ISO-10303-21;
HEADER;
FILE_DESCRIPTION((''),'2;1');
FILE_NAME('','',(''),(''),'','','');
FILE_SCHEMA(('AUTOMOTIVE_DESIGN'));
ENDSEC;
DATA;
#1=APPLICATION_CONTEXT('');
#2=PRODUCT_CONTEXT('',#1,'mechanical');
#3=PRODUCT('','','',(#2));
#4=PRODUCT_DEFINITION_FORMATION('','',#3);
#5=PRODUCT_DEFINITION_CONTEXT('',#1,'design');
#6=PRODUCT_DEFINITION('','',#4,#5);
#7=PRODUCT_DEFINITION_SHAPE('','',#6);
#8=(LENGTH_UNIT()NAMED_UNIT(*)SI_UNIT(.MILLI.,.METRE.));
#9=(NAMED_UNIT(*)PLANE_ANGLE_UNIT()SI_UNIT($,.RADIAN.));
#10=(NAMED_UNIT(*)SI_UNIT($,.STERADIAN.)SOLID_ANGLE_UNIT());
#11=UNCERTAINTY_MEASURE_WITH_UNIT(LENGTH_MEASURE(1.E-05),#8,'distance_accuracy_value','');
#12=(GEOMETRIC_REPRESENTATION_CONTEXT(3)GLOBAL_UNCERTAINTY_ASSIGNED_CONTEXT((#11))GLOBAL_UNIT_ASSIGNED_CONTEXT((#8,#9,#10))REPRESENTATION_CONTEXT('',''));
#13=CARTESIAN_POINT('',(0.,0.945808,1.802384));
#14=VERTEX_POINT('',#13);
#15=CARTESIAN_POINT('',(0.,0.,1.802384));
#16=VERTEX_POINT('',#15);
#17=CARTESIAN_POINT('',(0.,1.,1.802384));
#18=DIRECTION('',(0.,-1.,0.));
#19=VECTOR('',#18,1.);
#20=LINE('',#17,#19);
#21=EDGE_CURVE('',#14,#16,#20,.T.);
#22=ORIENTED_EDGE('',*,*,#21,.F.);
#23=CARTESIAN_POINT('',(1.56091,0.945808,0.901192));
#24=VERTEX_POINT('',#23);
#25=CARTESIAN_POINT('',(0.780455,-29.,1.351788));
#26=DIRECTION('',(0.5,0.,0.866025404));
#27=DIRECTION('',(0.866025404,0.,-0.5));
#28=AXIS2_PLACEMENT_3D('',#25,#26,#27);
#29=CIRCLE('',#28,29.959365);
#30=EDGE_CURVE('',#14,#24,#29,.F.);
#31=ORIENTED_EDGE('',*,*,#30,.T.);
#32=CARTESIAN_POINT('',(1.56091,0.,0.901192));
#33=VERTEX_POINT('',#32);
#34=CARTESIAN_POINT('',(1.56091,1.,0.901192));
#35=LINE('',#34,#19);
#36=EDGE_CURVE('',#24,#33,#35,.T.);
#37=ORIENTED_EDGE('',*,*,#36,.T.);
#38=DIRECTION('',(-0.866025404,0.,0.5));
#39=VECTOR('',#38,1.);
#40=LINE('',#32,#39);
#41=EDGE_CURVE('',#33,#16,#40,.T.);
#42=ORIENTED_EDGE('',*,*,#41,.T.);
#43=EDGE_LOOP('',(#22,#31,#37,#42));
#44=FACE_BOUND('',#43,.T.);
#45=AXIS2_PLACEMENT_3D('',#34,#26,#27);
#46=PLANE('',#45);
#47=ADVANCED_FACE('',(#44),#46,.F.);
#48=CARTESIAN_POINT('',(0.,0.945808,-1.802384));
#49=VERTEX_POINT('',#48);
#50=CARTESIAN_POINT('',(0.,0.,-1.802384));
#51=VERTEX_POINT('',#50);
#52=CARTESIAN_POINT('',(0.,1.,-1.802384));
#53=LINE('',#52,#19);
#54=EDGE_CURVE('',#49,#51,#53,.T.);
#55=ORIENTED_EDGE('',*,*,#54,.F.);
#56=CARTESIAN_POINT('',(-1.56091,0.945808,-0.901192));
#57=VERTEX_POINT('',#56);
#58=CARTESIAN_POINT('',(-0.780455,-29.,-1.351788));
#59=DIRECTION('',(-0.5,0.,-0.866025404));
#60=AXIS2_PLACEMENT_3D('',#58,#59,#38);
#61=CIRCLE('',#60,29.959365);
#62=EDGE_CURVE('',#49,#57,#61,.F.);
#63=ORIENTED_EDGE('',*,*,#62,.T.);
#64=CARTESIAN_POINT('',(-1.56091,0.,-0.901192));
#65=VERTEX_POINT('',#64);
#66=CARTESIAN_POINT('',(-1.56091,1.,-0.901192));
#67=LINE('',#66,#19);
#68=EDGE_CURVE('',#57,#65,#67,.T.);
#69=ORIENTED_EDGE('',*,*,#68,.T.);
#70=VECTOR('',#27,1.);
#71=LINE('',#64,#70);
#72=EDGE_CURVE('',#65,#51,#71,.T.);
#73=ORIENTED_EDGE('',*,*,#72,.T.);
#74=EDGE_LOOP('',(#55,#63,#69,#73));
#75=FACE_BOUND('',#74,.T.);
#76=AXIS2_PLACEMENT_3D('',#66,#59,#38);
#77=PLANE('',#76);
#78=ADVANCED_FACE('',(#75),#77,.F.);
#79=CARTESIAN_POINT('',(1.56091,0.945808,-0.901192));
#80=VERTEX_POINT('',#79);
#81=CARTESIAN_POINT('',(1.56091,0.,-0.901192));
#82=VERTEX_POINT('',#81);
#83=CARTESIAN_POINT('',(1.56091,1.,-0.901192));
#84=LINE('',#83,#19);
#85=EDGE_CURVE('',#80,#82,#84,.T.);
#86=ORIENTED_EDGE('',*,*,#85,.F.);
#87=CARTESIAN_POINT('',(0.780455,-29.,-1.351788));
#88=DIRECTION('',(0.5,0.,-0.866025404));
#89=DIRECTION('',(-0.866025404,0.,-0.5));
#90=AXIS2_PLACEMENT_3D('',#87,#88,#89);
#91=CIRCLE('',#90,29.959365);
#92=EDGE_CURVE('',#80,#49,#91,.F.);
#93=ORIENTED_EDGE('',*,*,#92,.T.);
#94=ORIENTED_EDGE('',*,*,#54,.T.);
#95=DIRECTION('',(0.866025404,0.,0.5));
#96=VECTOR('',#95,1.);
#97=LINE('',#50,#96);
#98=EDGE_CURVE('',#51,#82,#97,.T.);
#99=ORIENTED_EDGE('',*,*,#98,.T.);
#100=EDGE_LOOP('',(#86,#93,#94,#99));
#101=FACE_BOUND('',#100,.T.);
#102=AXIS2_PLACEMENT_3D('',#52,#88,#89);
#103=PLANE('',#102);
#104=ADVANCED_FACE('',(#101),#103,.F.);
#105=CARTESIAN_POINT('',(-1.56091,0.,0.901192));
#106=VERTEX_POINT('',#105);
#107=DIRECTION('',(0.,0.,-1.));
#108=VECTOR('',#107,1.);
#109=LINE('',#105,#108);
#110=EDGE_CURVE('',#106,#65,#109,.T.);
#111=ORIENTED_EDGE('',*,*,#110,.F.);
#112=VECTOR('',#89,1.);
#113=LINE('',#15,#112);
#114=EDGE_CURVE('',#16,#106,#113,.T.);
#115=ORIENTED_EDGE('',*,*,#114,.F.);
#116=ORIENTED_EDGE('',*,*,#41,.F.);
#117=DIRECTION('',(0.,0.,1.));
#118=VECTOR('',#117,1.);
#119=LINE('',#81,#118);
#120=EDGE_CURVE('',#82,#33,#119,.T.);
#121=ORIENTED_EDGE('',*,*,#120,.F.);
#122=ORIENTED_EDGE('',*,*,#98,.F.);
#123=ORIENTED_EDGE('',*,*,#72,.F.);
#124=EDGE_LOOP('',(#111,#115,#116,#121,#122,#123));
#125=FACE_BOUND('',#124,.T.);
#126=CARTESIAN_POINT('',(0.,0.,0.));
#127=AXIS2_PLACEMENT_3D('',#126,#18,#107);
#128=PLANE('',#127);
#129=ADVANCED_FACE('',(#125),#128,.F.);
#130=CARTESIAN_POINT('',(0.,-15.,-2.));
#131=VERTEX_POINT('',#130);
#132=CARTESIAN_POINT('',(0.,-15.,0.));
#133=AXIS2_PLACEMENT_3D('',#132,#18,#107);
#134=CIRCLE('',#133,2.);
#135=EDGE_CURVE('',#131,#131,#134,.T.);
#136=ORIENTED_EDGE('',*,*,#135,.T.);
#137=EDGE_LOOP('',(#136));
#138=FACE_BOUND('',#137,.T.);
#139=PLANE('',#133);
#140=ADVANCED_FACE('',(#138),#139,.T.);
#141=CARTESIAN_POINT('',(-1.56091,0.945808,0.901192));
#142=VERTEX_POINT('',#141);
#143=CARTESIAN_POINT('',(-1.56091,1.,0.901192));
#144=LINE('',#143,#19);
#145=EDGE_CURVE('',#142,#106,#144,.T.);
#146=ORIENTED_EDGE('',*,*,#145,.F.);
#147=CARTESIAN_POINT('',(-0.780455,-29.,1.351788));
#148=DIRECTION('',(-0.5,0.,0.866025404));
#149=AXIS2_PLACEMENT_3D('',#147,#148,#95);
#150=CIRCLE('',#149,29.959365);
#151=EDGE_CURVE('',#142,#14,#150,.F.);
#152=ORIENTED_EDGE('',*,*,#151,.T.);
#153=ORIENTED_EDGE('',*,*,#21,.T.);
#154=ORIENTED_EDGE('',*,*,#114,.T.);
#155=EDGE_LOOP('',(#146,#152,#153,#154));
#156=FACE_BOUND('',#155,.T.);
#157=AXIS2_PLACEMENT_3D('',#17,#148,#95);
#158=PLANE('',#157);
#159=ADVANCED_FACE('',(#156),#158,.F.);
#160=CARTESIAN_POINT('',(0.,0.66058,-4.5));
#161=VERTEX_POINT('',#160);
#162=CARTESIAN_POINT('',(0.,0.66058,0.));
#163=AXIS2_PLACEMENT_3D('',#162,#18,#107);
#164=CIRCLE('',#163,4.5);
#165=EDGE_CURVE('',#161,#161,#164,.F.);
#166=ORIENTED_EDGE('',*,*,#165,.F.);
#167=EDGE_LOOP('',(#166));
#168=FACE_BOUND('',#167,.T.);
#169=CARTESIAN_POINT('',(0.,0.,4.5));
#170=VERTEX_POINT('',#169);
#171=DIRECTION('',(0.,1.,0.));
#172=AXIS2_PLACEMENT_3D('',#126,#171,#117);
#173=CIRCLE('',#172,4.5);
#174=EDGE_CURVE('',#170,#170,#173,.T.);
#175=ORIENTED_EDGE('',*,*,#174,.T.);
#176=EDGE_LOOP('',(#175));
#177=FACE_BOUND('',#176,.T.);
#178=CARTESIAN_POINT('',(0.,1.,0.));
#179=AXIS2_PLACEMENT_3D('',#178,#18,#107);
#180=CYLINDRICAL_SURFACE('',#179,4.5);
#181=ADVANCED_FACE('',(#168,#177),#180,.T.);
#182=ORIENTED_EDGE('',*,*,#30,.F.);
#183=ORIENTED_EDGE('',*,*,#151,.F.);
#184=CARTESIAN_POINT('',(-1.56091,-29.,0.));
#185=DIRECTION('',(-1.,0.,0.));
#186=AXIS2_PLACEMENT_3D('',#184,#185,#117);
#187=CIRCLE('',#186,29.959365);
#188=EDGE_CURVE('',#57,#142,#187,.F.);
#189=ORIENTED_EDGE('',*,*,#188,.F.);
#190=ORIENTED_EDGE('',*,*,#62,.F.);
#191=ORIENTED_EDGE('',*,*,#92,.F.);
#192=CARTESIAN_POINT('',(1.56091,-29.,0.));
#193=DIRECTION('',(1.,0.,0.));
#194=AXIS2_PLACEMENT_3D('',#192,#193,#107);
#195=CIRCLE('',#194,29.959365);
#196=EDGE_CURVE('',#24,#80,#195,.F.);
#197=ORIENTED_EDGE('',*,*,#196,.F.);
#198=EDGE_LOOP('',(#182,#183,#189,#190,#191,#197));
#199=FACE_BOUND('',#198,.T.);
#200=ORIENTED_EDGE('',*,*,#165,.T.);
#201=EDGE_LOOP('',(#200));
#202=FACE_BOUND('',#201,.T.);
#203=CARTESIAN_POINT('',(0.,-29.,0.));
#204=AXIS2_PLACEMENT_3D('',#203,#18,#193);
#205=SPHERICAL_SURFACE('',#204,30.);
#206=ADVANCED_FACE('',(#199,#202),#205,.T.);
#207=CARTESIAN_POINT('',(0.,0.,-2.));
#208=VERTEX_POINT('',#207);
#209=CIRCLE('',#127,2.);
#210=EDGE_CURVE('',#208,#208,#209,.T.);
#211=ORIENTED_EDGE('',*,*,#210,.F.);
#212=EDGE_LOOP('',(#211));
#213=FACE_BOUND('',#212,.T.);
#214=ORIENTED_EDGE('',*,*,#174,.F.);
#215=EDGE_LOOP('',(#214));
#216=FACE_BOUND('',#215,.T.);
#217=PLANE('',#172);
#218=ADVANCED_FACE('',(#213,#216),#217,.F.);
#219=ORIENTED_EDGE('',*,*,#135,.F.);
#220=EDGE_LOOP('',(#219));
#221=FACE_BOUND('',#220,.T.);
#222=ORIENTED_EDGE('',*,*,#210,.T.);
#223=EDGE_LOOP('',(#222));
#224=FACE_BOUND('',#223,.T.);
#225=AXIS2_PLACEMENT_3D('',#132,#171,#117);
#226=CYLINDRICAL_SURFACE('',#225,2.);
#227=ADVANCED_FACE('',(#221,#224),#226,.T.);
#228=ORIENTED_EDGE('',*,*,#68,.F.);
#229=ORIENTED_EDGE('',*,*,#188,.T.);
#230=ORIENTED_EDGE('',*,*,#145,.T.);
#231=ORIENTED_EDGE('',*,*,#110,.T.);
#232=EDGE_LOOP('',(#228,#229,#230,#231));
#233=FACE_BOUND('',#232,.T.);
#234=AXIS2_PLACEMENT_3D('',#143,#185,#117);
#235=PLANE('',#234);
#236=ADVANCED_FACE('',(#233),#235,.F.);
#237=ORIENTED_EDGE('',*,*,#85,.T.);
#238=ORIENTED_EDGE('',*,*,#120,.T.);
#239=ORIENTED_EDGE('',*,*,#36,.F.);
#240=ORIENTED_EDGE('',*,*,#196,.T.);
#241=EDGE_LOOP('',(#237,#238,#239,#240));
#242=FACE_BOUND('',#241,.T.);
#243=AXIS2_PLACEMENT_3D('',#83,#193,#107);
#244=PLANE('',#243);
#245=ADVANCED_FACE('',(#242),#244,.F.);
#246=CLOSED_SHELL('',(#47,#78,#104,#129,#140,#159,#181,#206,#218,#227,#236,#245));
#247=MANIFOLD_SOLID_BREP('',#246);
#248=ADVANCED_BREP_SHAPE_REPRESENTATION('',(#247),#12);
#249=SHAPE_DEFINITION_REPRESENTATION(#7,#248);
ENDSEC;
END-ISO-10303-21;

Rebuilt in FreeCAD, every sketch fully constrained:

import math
import FreeCAD as App
import Part
import Sketcher

V = App.Vector
Q = App.Units.Quantity


def add_polygon(sketch, points):
    """Adds a closed chain of lines whose ends are joined by coincident constraints."""
    first, n = sketch.GeometryCount, len(points)
    for a, b in zip(points, points[1:] + points[:1]):
        sketch.addGeometry(Part.LineSegment(App.Vector(*a, 0), App.Vector(*b, 0)), False)
    for i in range(n):
        sketch.addConstraint(Sketcher.Constraint("Coincident", first + i, 2, first + (i + 1) % n, 1))

doc = App.newDocument("Part")
params = doc.addObject("Spreadsheet::Sheet", "Params")
for row, (alias, value) in enumerate([
    ("sketch1_diameter", "9 mm"),
    ("pad1_length", "1 mm"),
    ("sketch2_diameter", "4 mm"),
    ("pad2_length", "15 mm"),
    ("sketch3_radius", "30 mm"),
    ("groove_angle", "360 deg"),
    ("pocket1_length", "1 mm"),
], start=1):
    params.set(f"A{row}", alias)
    params.set(f"B{row}", "=" + value)
    params.setAlias(f"B{row}", alias)

body = doc.addObject("PartDesign::Body", "Body")

# Sketch on XZ plane
sketch1 = body.newObject("Sketcher::SketchObject", "Sketch")
sketch1.AttachmentSupport = (doc.getObject("XZ_Plane"), [""])
sketch1.MapMode = "FlatFace"
sketch1.addGeometry(Part.Circle(V(0, 0, 0), V(0, 0, 1), 4.5), False)
sketch1.addConstraint([
    Sketcher.Constraint("Coincident", 0, 3, -1, 1),
    Sketcher.Constraint("Diameter", 0, Q("9 mm")),
])
sketch1.setExpression("Constraints[1]", "Params.sketch1_diameter")
pad1 = body.newObject("PartDesign::Pad", "Pad")
pad1.Profile = sketch1
pad1.setExpression("Length", "Params.pad1_length")
pad1.Reversed = True

# Sketch on XZ plane
sketch2 = body.newObject("Sketcher::SketchObject", "Sketch001")
sketch2.AttachmentSupport = (doc.getObject("XZ_Plane"), [""])
sketch2.MapMode = "FlatFace"
sketch2.addGeometry(Part.Circle(V(0, 0, 0), V(0, 0, 1), 2), False)
sketch2.addConstraint([
    Sketcher.Constraint("Coincident", 0, 3, -1, 1),
    Sketcher.Constraint("Diameter", 0, Q("4 mm")),
])
sketch2.setExpression("Constraints[1]", "Params.sketch2_diameter")
pad2 = body.newObject("PartDesign::Pad", "Pad001")
pad2.Profile = sketch2
pad2.setExpression("Length", "Params.pad2_length")

# Sketch on XY plane
sketch3 = body.newObject("Sketcher::SketchObject", "Sketch002")
sketch3.AttachmentSupport = (doc.getObject("XY_Plane"), [""])
sketch3.MapMode = "FlatFace"
sketch3.addGeometry([
    Part.ArcOfCircle(Part.Circle(V(0, -29, 0), V(0, 0, 1), 30), math.radians(79.26), math.radians(90)),
    Part.LineSegment(V(5.6, 0.5, 0), V(5.7, 3.3, 0)),
    Part.LineSegment(V(5.7, 3.3, 0), V(0, 3.3, 0)),
    Part.LineSegment(V(0, 3.3, 0), V(0, 1, 0)),
], False)
sketch3.addConstraint([
    Sketcher.Constraint("Coincident", 0, 1, 1, 1),
    Sketcher.Constraint("Coincident", 1, 2, 2, 1),
    Sketcher.Constraint("Coincident", 2, 2, 3, 1),
    Sketcher.Constraint("Coincident", 3, 2, 0, 2),
    Sketcher.Constraint("Vertical", 3),
    Sketcher.Constraint("PointOnObject", 0, 3, -2),
    Sketcher.Constraint("PointOnObject", 2, 2, -2),
    Sketcher.Constraint("Radius", 0, Q("30 mm")),
    Sketcher.Constraint("DistanceY", 0, 3, -1, 1, Q("29 mm")),
    Sketcher.Constraint("DistanceY", 3, 2, 3, 1, Q("2.329373 mm")),
    Sketcher.Constraint("DistanceX", 0, 1, 1, 2, Q("0.144339 mm")),
    Sketcher.Constraint("DistanceY", 1, 2, 2, 2, Q("0.050079 mm")),
    Sketcher.Constraint("Distance", 1, Q("2.808418 mm")),
])
sketch3.setExpression("Constraints[7]", "Params.sketch3_radius")
groove = body.newObject("PartDesign::Groove", "Groove")
groove.Profile = sketch3
groove.ReferenceAxis = (sketch3, ["V_Axis"])
groove.setExpression("Angle", "Params.groove_angle")

# Sketch on XZ plane
sketch4 = body.newObject("Sketcher::SketchObject", "Sketch003")
sketch4.AttachmentSupport = (doc.getObject("XZ_Plane"), [""])
sketch4.MapMode = "FlatFace"
add_polygon(sketch4, [(0, -1.8), (1.6, -0.9), (1.6, 0.9), (0, 1.8), (-1.6, 0.9), (-1.6, -0.9)])  # lines 0-5
sketch4.addConstraint([
    Sketcher.Constraint("Vertical", 1),
    Sketcher.Constraint("Vertical", 4),
    Sketcher.Constraint("Symmetric", 0, 2, 3, 2, -1, 1),
    Sketcher.Constraint("Symmetric", 2, 2, 5, 2, -1, 1),
    Sketcher.Constraint("PointOnObject", 2, 2, -2),
    Sketcher.Constraint("Parallel", 2, 5),
    Sketcher.Constraint("Horizontal", 1, 2, 3, 2),
    Sketcher.Constraint("Angle", 0, Q("30 deg")),
    Sketcher.Constraint("DistanceY", 1, 1, 1, 2, Q("1.802384 mm")),
    Sketcher.Constraint("DistanceX", -1, 1, 0, 2, Q("1.56091 mm")),
])
pocket1 = body.newObject("PartDesign::Pocket", "Pocket")
pocket1.Profile = sketch4
pocket1.setExpression("Length", "Params.pocket1_length")

doc.recompute()
